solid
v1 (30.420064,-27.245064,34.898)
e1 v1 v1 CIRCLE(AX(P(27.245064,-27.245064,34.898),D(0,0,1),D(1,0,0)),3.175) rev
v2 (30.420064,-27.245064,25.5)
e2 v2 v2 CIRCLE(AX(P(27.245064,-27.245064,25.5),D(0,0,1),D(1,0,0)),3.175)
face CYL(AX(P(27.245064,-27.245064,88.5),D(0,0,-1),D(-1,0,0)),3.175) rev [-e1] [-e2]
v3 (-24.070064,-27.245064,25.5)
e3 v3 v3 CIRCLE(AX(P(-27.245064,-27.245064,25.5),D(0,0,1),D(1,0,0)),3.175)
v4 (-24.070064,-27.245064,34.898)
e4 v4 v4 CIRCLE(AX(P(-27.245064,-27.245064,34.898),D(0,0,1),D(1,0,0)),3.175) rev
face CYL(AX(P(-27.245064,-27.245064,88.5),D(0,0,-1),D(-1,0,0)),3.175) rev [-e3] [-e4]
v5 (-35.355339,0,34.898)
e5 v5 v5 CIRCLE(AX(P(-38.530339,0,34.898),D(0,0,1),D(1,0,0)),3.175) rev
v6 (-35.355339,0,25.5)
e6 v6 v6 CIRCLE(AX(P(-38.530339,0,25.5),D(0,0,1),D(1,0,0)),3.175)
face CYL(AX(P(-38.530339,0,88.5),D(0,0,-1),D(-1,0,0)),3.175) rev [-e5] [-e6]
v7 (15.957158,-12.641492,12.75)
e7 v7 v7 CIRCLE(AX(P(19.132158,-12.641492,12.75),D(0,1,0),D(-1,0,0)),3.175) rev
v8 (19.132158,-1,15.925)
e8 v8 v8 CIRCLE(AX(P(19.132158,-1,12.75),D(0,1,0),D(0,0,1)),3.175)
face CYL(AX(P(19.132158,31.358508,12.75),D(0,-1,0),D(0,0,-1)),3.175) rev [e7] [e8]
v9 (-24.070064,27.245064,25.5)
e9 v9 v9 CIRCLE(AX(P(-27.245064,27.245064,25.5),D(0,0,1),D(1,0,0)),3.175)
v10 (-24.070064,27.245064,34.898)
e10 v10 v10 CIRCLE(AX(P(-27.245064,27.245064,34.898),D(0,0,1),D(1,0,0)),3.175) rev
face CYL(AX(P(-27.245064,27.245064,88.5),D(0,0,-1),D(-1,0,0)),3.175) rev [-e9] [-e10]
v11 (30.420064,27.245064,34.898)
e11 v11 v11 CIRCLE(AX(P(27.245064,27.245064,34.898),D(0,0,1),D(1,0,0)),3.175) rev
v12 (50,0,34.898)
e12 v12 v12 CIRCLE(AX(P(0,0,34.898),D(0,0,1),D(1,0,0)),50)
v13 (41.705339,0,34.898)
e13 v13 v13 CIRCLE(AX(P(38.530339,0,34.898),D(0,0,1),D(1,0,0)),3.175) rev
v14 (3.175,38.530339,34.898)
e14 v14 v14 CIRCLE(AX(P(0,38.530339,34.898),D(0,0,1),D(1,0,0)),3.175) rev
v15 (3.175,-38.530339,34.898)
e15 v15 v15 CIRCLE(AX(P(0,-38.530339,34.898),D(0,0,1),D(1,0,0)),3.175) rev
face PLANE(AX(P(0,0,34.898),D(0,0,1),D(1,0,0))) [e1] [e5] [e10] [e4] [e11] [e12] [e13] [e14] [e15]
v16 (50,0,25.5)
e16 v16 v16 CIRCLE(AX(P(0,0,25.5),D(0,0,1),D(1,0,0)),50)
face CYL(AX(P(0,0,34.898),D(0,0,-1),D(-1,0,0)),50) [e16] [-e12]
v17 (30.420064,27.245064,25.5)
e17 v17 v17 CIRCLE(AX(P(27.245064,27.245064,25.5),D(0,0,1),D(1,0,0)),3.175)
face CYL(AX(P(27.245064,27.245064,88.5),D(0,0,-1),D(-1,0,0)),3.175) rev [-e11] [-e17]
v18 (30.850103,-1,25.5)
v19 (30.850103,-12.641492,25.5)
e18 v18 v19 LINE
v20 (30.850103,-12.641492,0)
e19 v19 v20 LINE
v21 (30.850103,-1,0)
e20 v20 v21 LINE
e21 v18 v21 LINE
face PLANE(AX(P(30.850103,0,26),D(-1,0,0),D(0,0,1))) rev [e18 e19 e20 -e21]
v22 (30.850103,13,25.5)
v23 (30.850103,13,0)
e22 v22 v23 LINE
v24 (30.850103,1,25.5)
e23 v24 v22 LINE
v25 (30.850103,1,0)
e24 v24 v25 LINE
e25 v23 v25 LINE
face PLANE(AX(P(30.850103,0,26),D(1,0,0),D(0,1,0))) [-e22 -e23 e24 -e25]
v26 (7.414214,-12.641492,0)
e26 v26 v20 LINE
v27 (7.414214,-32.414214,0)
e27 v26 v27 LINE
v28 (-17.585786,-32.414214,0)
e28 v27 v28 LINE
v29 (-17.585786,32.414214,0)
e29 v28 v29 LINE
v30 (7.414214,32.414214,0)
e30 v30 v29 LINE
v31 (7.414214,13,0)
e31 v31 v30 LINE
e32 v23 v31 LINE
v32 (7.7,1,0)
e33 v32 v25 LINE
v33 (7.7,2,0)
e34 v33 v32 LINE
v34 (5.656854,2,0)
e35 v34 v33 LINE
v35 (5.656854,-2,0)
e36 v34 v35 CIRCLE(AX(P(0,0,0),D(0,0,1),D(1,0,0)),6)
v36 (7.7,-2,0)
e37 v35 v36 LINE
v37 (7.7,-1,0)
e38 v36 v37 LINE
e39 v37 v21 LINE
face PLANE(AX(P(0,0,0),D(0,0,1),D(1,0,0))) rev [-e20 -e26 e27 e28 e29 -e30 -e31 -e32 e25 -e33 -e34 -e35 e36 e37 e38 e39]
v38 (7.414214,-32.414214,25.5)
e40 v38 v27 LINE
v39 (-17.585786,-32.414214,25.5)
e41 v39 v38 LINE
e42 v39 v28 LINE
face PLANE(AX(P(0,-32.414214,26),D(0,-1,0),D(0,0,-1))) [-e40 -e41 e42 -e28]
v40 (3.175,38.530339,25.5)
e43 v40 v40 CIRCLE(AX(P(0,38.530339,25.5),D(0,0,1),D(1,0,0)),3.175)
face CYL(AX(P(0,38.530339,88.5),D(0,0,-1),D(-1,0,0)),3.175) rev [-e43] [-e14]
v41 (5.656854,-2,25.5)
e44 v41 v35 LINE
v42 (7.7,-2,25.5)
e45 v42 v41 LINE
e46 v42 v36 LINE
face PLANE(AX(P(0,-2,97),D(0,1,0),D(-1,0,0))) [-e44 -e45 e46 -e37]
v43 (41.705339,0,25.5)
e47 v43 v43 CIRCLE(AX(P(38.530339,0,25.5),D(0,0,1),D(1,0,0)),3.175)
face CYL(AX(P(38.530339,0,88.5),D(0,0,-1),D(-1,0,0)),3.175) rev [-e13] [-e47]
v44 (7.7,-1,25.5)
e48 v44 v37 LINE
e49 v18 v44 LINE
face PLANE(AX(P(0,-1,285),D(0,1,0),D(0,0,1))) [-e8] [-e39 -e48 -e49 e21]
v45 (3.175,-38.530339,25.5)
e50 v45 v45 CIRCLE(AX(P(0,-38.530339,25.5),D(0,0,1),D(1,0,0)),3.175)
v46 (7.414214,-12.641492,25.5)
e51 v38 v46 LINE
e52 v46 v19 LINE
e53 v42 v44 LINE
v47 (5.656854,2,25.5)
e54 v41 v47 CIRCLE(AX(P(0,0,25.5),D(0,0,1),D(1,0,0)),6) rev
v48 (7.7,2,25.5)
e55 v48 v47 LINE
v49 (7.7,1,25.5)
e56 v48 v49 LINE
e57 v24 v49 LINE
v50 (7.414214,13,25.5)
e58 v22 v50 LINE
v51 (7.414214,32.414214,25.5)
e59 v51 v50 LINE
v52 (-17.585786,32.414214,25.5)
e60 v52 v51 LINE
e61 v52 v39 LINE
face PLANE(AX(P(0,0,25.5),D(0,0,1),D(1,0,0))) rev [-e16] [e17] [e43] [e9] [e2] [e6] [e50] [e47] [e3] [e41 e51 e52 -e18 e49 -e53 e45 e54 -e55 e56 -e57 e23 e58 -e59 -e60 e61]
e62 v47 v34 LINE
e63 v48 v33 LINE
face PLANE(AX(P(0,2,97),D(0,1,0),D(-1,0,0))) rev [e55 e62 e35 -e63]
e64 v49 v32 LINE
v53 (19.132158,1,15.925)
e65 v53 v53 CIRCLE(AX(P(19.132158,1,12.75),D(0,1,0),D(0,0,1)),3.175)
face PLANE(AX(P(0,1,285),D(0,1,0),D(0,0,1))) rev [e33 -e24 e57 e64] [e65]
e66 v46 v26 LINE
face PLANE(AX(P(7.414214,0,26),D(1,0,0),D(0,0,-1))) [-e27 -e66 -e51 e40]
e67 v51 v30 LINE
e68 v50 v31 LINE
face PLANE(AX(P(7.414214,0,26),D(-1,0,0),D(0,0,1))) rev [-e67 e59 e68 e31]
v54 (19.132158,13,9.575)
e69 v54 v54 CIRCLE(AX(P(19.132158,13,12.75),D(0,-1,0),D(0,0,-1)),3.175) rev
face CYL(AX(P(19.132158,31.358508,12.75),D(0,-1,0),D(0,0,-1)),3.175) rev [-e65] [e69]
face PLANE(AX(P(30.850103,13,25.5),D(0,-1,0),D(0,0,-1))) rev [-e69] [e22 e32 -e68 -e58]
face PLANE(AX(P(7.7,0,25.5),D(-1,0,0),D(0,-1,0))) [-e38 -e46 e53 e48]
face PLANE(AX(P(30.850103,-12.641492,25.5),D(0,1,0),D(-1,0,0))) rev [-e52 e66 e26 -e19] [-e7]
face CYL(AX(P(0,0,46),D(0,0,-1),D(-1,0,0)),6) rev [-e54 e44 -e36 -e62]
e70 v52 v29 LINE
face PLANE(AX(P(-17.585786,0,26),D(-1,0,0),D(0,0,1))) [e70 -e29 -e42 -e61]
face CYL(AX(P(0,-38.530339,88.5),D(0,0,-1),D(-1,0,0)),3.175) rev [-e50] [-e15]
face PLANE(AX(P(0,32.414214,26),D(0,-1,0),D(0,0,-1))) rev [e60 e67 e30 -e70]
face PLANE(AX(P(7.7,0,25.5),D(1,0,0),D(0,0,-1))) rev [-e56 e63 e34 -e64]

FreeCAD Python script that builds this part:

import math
import FreeCAD as App
import Part
import Sketcher
Q = App.Units.Quantity

doc = App.newDocument("Part")
params = doc.addObject("Spreadsheet::Sheet", "Params")
for row, (alias, value) in enumerate([
    ("sketch1_width", "30 mm"),
    ("pad1_length", "25.5 mm"),
    ("sketch2_radius", "6 mm"),
    ("sketch2_height", "2 mm"),
    ("pocket1_length", "46 mm"),
    ("sketch3_radius", "6 mm"),
    ("pocket2_length", "30 mm"),
    ("sketch4_radius", "6 mm"),
    ("sketch4_height", "2 mm"),
    ("pocket3_length", "31 mm"),
    ("sketch5_radius", "6 mm"),
    ("sketch5_height", "2 mm"),
    ("pocket4_length", "40 mm"),
    ("sketch6_diameter", "12 mm"),
    ("pocket5_length", "46 mm"),
    ("sketch7_radius", "6 mm"),
    ("sketch7_height", "4 mm"),
    ("pocket6_length", "97 mm"),
    ("sketch8_height", "2 mm"),
    ("pocket7_length", "285 mm"),
    ("sketch9_diameter", "100 mm"),
    ("pad2_length", "9.398 mm"),
    ("sketch10_width", "11 mm"),
    ("sketch10_height", "2 mm"),
    ("pocket8_length", "25.5 mm"),
    ("sketch11_diameter", "6.35 mm"),
    ("pocket9_length", "63 mm"),
    ("sketch12_width", "25 mm"),
    ("sketch12_height", "20 mm"),
    ("pad3_length", "26 mm"),
    ("sketch13_width", "10 mm"),
    ("sketch13_height", "2 mm"),
    ("pad4_length", "26 mm"),
    ("sketch14_diameter", "6.35 mm"),
    ("pocket10_length", "54 mm"),
    ("sketch15_height", "10 mm"),
    ("pocket11_length", "25.5 mm"),
    ("sketch16_height", "1 mm"),
    ("sketch16_width", "0.7 mm"),
    ("pocket12_length", "25.5 mm"),
], start=1):
    params.set(f"A{row}", alias)
    params.set(f"B{row}", "=" + value)
    params.setAlias(f"B{row}", alias)

body = doc.addObject("PartDesign::Body", "Body")

# Sketch on XY plane
sketch1 = body.newObject("Sketcher::SketchObject", "Sketch")
sketch1.AttachmentSupport = (doc.getObject("XY_Plane"), [""])
sketch1.MapMode = "FlatFace"
sketch1.addGeometry([
    Part.LineSegment(App.Vector(-7, 7, 0), App.Vector(-7, -7, 0)),
    Part.LineSegment(App.Vector(-7, -7, 0), App.Vector(23, -7, 0)),
    Part.LineSegment(App.Vector(23, -7, 0), App.Vector(23, 7, 0)),
    Part.LineSegment(App.Vector(23, 7, 0), App.Vector(-7, 7, 0)),
], False)
sketch1.addConstraint([
    Sketcher.Constraint("Coincident", 0, 2, 1, 1),
    Sketcher.Constraint("Coincident", 1, 2, 2, 1),
    Sketcher.Constraint("Coincident", 2, 2, 3, 1),
    Sketcher.Constraint("Coincident", 3, 2, 0, 1),
    Sketcher.Constraint("Vertical", 0),
    Sketcher.Constraint("Horizontal", 1),
    Sketcher.Constraint("Vertical", 2),
    Sketcher.Constraint("Horizontal", 3),
    Sketcher.Constraint("DistanceX", 1, 1, 1, 2, Q("30 mm")),
    Sketcher.Constraint("DistanceY", 0, 2, 0, 1, Q("14.828427 mm")),
    Sketcher.Constraint("DistanceX", 0, 2, -1, 1, Q("7.414214 mm")),
    Sketcher.Constraint("DistanceY", 0, 2, -1, 1, Q("7.414214 mm")),
])
sketch1.setExpression("Constraints[8]", "Params.sketch1_width")
pad1 = body.newObject("PartDesign::Pad", "Pad")
pad1.Profile = sketch1
pad1.setExpression("Length", "Params.pad1_length")

# Sketch on XY plane
sketch2 = body.newObject("Sketcher::SketchObject", "Sketch001")
sketch2.AttachmentSupport = (doc.getObject("XY_Plane"), [""])
sketch2.MapMode = "FlatFace"
sketch2.addGeometry([
    Part.LineSegment(App.Vector(0, -2, 0), App.Vector(0, 0, 0)),  # 0
    Part.LineSegment(App.Vector(0, 0, 0), App.Vector(-6, 0, 0)),  # 1
    Part.ArcOfCircle(Part.Circle(App.Vector(0, 0, 0), App.Vector(0, 0, 1), 6), math.radians(180), math.radians(270)),  # 2
    Part.ArcOfCircle(Part.Circle(App.Vector(0, 0, 0), App.Vector(0, 0, 1), 6), math.radians(-90), math.radians(-19)),  # 3
    Part.LineSegment(App.Vector(5.7, -2, 0), App.Vector(0, -2, 0)),  # 4
], False)
sketch2.addConstraint([
    Sketcher.Constraint("Coincident", 0, 2, 1, 1),
    Sketcher.Constraint("Coincident", 1, 2, 2, 1),
    Sketcher.Constraint("Tangent", 2, 2, 3, 1),
    Sketcher.Constraint("Coincident", 3, 2, 4, 1),
    Sketcher.Constraint("Coincident", 4, 2, 0, 1),
    Sketcher.Constraint("Vertical", 0),
    Sketcher.Constraint("Horizontal", 1),
    Sketcher.Constraint("Horizontal", 4),
    Sketcher.Constraint("Coincident", 2, 3, -1, 1),
    Sketcher.Constraint("Coincident", 0, 2, -1, 1),
    Sketcher.Constraint("Equal", 2, 3),
    Sketcher.Constraint("PointOnObject", 2, 2, -2),
    Sketcher.Constraint("Radius", 2, Q("6 mm")),
    Sketcher.Constraint("DistanceY", 0, 1, 0, 2, Q("2 mm")),
])
sketch2.setExpression("Constraints[12]", "Params.sketch2_radius")
sketch2.setExpression("Constraints[13]", "Params.sketch2_height")
pocket1 = body.newObject("PartDesign::Pocket", "Pocket")
pocket1.Profile = sketch2
pocket1.setExpression("Length", "Params.pocket1_length")
pocket1.Reversed = True

# Sketch on XY plane
sketch3 = body.newObject("Sketcher::SketchObject", "Sketch002")
sketch3.AttachmentSupport = (doc.getObject("XY_Plane"), [""])
sketch3.MapMode = "FlatFace"
sketch3.addGeometry([
    Part.LineSegment(App.Vector(-6, 0, 0), App.Vector(0, 0, 0)),
    Part.LineSegment(App.Vector(0, 0, 0), App.Vector(0, 6, 0)),
    Part.ArcOfCircle(Part.Circle(App.Vector(0, 0, 0), App.Vector(0, 0, 1), 6), math.radians(90), math.radians(180)),
], False)
sketch3.addConstraint([
    Sketcher.Constraint("Coincident", 0, 2, 1, 1),
    Sketcher.Constraint("Coincident", 1, 2, 2, 1),
    Sketcher.Constraint("Coincident", 2, 2, 0, 1),
    Sketcher.Constraint("Horizontal", 0),
    Sketcher.Constraint("Vertical", 1),
    Sketcher.Constraint("Coincident", 2, 3, -1, 1),
    Sketcher.Constraint("Coincident", 0, 2, -1, 1),
    Sketcher.Constraint("Radius", 2, Q("6 mm")),
])
sketch3.setExpression("Constraints[7]", "Params.sketch3_radius")
pocket2 = body.newObject("PartDesign::Pocket", "Pocket001")
pocket2.Profile = sketch3
pocket2.setExpression("Length", "Params.pocket2_length")
pocket2.Reversed = True

# Sketch on XY plane
sketch4 = body.newObject("Sketcher::SketchObject", "Sketch003")
sketch4.AttachmentSupport = (doc.getObject("XY_Plane"), [""])
sketch4.MapMode = "FlatFace"
sketch4.addGeometry([
    Part.LineSegment(App.Vector(0, 2, 0), App.Vector(0, 0, 0)),
    Part.LineSegment(App.Vector(0, 0, 0), App.Vector(6, 0, 0)),
    Part.ArcOfCircle(Part.Circle(App.Vector(0, 0, 0), App.Vector(0, 0, 1), 6), math.radians(0), math.radians(19.47)),
    Part.LineSegment(App.Vector(5.7, 2, 0), App.Vector(0, 2, 0)),
], False)
sketch4.addConstraint([
    Sketcher.Constraint("Coincident", 0, 2, 1, 1),
    Sketcher.Constraint("Coincident", 1, 2, 2, 1),
    Sketcher.Constraint("Coincident", 2, 2, 3, 1),
    Sketcher.Constraint("Coincident", 3, 2, 0, 1),
    Sketcher.Constraint("Vertical", 0),
    Sketcher.Constraint("Horizontal", 1),
    Sketcher.Constraint("Horizontal", 3),
    Sketcher.Constraint("Coincident", 2, 3, -1, 1),
    Sketcher.Constraint("Coincident", 0, 2, -1, 1),
    Sketcher.Constraint("Radius", 2, Q("6 mm")),
    Sketcher.Constraint("DistanceY", 0, 2, 0, 1, Q("2 mm")),
])
sketch4.setExpression("Constraints[9]", "Params.sketch4_radius")
sketch4.setExpression("Constraints[10]", "Params.sketch4_height")
pocket3 = body.newObject("PartDesign::Pocket", "Pocket002")
pocket3.Profile = sketch4
pocket3.setExpression("Length", "Params.pocket3_length")
pocket3.Reversed = True

# Sketch on XY plane
sketch5 = body.newObject("Sketcher::SketchObject", "Sketch004")
sketch5.AttachmentSupport = (doc.getObject("XY_Plane"), [""])
sketch5.MapMode = "FlatFace"
sketch5.addGeometry([
    Part.LineSegment(App.Vector(6, 0, 0), App.Vector(0, 0, 0)),
    Part.LineSegment(App.Vector(0, 0, 0), App.Vector(0, -2, 0)),
    Part.LineSegment(App.Vector(0, -2, 0), App.Vector(5.7, -2, 0)),
    Part.ArcOfCircle(Part.Circle(App.Vector(0, 0, 0), App.Vector(0, 0, 1), 6), math.radians(-19.47), math.radians(0)),
], False)
sketch5.addConstraint([
    Sketcher.Constraint("Coincident", 0, 2, 1, 1),
    Sketcher.Constraint("Coincident", 1, 2, 2, 1),
    Sketcher.Constraint("Coincident", 2, 2, 3, 1),
    Sketcher.Constraint("Coincident", 3, 2, 0, 1),
    Sketcher.Constraint("Horizontal", 0),
    Sketcher.Constraint("Vertical", 1),
    Sketcher.Constraint("Horizontal", 2),
    Sketcher.Constraint("Coincident", 3, 3, -1, 1),
    Sketcher.Constraint("Coincident", 0, 2, -1, 1),
    Sketcher.Constraint("Radius", 3, Q("6 mm")),
    Sketcher.Constraint("DistanceY", 1, 2, 1, 1, Q("2 mm")),
])
sketch5.setExpression("Constraints[9]", "Params.sketch5_radius")
sketch5.setExpression("Constraints[10]", "Params.sketch5_height")
pocket4 = body.newObject("PartDesign::Pocket", "Pocket003")
pocket4.Profile = sketch5
pocket4.setExpression("Length", "Params.pocket4_length")
pocket4.Reversed = True

# Sketch on XY plane
sketch6 = body.newObject("Sketcher::SketchObject", "Sketch005")
sketch6.AttachmentSupport = (doc.getObject("XY_Plane"), [""])
sketch6.MapMode = "FlatFace"
sketch6.addGeometry(Part.Circle(App.Vector(0, 0, 0), App.Vector(0, 0, 1), 6), False)
sketch6.addConstraint([
    Sketcher.Constraint("Coincident", 0, 3, -1, 1),
    Sketcher.Constraint("Diameter", 0, Q("12 mm")),
])
sketch6.setExpression("Constraints[1]", "Params.sketch6_diameter")
pocket5 = body.newObject("PartDesign::Pocket", "Pocket004")
pocket5.Profile = sketch6
pocket5.setExpression("Length", "Params.pocket5_length")
pocket5.Reversed = True

# Sketch on XY plane
sketch7 = body.newObject("Sketcher::SketchObject", "Sketch006")
sketch7.AttachmentSupport = (doc.getObject("XY_Plane"), [""])
sketch7.MapMode = "FlatFace"
sketch7.addGeometry([
    Part.ArcOfCircle(Part.Circle(App.Vector(0, 0, 0), App.Vector(0, 0, 1), 6), math.radians(0), math.radians(19.47)),  # 0
    Part.ArcOfCircle(Part.Circle(App.Vector(0, 0, 0), App.Vector(0, 0, 1), 6), math.radians(-19.47), math.radians(0)),  # 1
    Part.LineSegment(App.Vector(5.7, -2, 0), App.Vector(7, -2, 0)),  # 2
    Part.LineSegment(App.Vector(7, -2, 0), App.Vector(7, 2, 0)),  # 3
    Part.LineSegment(App.Vector(7, 2, 0), App.Vector(5.7, 2, 0)),  # 4
], False)
sketch7.addConstraint([
    Sketcher.Constraint("Tangent", 0, 1, 1, 2),
    Sketcher.Constraint("Coincident", 1, 1, 2, 1),
    Sketcher.Constraint("Coincident", 2, 2, 3, 1),
    Sketcher.Constraint("Coincident", 3, 2, 4, 1),
    Sketcher.Constraint("Coincident", 4, 2, 0, 2),
    Sketcher.Constraint("Horizontal", 2),
    Sketcher.Constraint("Vertical", 3),
    Sketcher.Constraint("Horizontal", 4),
    Sketcher.Constraint("Coincident", 0, 3, -1, 1),
    Sketcher.Constraint("Equal", 0, 1),
    Sketcher.Constraint("PointOnObject", 0, 1, -1),
    Sketcher.Constraint("Vertical", 1, 1, 4, 2),
    Sketcher.Constraint("Radius", 0, Q("6 mm")),
    Sketcher.Constraint("DistanceY", 3, 1, 3, 2, Q("4 mm")),
    Sketcher.Constraint("DistanceX", -1, 1, 2, 2, Q("7 mm")),
])
sketch7.setExpression("Constraints[12]", "Params.sketch7_radius")
sketch7.setExpression("Constraints[13]", "Params.sketch7_height")
pocket6 = body.newObject("PartDesign::Pocket", "Pocket005")
pocket6.Profile = sketch7
pocket6.setExpression("Length", "Params.pocket6_length")
pocket6.Reversed = True

# Sketch on XY plane
sketch8 = body.newObject("Sketcher::SketchObject", "Sketch007")
sketch8.AttachmentSupport = (doc.getObject("XY_Plane"), [""])
sketch8.MapMode = "FlatFace"
sketch8.addGeometry([
    Part.ArcOfCircle(Part.Circle(App.Vector(0, 0, 0), App.Vector(0, 0, 1), 10.5), math.radians(17), math.radians(45)),  # 0
    Part.LineSegment(App.Vector(10, 3, 0), App.Vector(20.9, 3, 0)),  # 1
    Part.LineSegment(App.Vector(20.9, 3, 0), App.Vector(20.9, 1, 0)),  # 2
    Part.LineSegment(App.Vector(20.9, 1, 0), App.Vector(18, 1, 0)),  # 3
    Part.LineSegment(App.Vector(18, 1, 0), App.Vector(18, -1, 0)),  # 4
    Part.LineSegment(App.Vector(18, -1, 0), App.Vector(20.9, -1, 0)),  # 5
    Part.LineSegment(App.Vector(20.9, -1, 0), App.Vector(20.9, -3, 0)),  # 6
    Part.LineSegment(App.Vector(20.9, -3, 0), App.Vector(10, -3, 0)),  # 7
    Part.ArcOfCircle(Part.Circle(App.Vector(0, 0, 0), App.Vector(0, 0, 1), 10.5), math.radians(-45), math.radians(-17)),  # 8
    Part.LineSegment(App.Vector(7.4, -7.4, 0), App.Vector(22.6, -7.4, 0)),  # 9
    Part.LineSegment(App.Vector(22.6, -7.4, 0), App.Vector(22.6, 7.4, 0)),  # 10
    Part.LineSegment(App.Vector(22.6, 7.4, 0), App.Vector(7.4, 7.4, 0)),  # 11
], False)
sketch8.addConstraint([
    Sketcher.Constraint("Coincident", 0, 1, 1, 1),
    Sketcher.Constraint("Coincident", 1, 2, 2, 1),
    Sketcher.Constraint("Coincident", 2, 2, 3, 1),
    Sketcher.Constraint("Coincident", 3, 2, 4, 1),
    Sketcher.Constraint("Coincident", 4, 2, 5, 1),
    Sketcher.Constraint("Coincident", 5, 2, 6, 1),
    Sketcher.Constraint("Coincident", 6, 2, 7, 1),
    Sketcher.Constraint("Coincident", 7, 2, 8, 2),
    Sketcher.Constraint("Coincident", 8, 1, 9, 1),
    Sketcher.Constraint("Coincident", 9, 2, 10, 1),
    Sketcher.Constraint("Coincident", 10, 2, 11, 1),
    Sketcher.Constraint("Coincident", 11, 2, 0, 2),
    Sketcher.Constraint("Horizontal", 1),
    Sketcher.Constraint("Vertical", 2),
    Sketcher.Constraint("Horizontal", 3),
    Sketcher.Constraint("Vertical", 4),
    Sketcher.Constraint("Horizontal", 5),
    Sketcher.Constraint("Vertical", 6),
    Sketcher.Constraint("Horizontal", 7),
    Sketcher.Constraint("Horizontal", 9),
    Sketcher.Constraint("Vertical", 10),
    Sketcher.Constraint("Horizontal", 11),
    Sketcher.Constraint("Coincident", 0, 3, -1, 1),
    Sketcher.Constraint("Coincident", 8, 3, -1, 1),
    Sketcher.Constraint("Equal", 0, 8),
    Sketcher.Constraint("Symmetric", 2, 2, 5, 2, -1),
    Sketcher.Constraint("Vertical", 0, 1, 7, 2),
    Sketcher.Constraint("Vertical", 8, 1, 11, 2),
    Sketcher.Constraint("Equal", 2, 4),
    Sketcher.Constraint("DistanceY", 2, 2, 2, 1, Q("2 mm")),
    Sketcher.Constraint("DistanceX", -1, 1, 3, 2, Q("18 mm")),
    Sketcher.Constraint("Radius", 0, Q("10.485281 mm")),
    Sketcher.Constraint("DistanceX", 1, 1, 1, 2, Q("10.803157 mm")),
    Sketcher.Constraint("DistanceX", 9, 1, 9, 2, Q("15.171573 mm")),
    Sketcher.Constraint("DistanceY", 10, 1, 10, 2, Q("14.828427 mm")),
])
sketch8.setExpression("Constraints[29]", "Params.sketch8_height")
pocket7 = body.newObject("PartDesign::Pocket", "Pocket006")
pocket7.Profile = sketch8
pocket7.setExpression("Length", "Params.pocket7_length")
pocket7.Reversed = True

# Sketch on XY plane
sketch9 = body.newObject("Sketcher::SketchObject", "Sketch008")
sketch9.AttachmentSupport = (doc.getObject("XY_Plane"), [""])
sketch9.MapMode = "FlatFace"
sketch9.AttachmentOffset = App.Placement(App.Vector(0, 0, 25.5), App.Rotation())
sketch9.addGeometry(Part.Circle(App.Vector(0, 0, 0), App.Vector(0, 0, 1), 50), False)
sketch9.addConstraint([
    Sketcher.Constraint("Coincident", 0, 3, -1, 1),
    Sketcher.Constraint("Diameter", 0, Q("100 mm")),
])
sketch9.setExpression("Constraints[1]", "Params.sketch9_diameter")
pad2 = body.newObject("PartDesign::Pad", "Pad001")
pad2.Profile = sketch9
pad2.setExpression("Length", "Params.pad2_length")

# Sketch on XY plane
sketch10 = body.newObject("Sketcher::SketchObject", "Sketch009")
sketch10.AttachmentSupport = (doc.getObject("XY_Plane"), [""])
sketch10.MapMode = "FlatFace"
sketch10.addGeometry([
    Part.LineSegment(App.Vector(18, 1, 0), App.Vector(18, -1, 0)),
    Part.LineSegment(App.Vector(18, -1, 0), App.Vector(7, -1, 0)),
    Part.LineSegment(App.Vector(7, -1, 0), App.Vector(7, 1, 0)),
    Part.LineSegment(App.Vector(7, 1, 0), App.Vector(18, 1, 0)),
], False)
sketch10.addConstraint([
    Sketcher.Constraint("Coincident", 0, 2, 1, 1),
    Sketcher.Constraint("Coincident", 1, 2, 2, 1),
    Sketcher.Constraint("Coincident", 2, 2, 3, 1),
    Sketcher.Constraint("Coincident", 3, 2, 0, 1),
    Sketcher.Constraint("Vertical", 0),
    Sketcher.Constraint("Horizontal", 1),
    Sketcher.Constraint("Vertical", 2),
    Sketcher.Constraint("Horizontal", 3),
    Sketcher.Constraint("DistanceX", 1, 2, 1, 1, Q("11 mm")),
    Sketcher.Constraint("DistanceY", 0, 2, 0, 1, Q("2 mm")),
    Sketcher.Constraint("DistanceX", -1, 1, 0, 2, Q("18 mm")),
    Sketcher.Constraint("DistanceY", 0, 2, -1, 1, Q("1 mm")),
])
sketch10.setExpression("Constraints[8]", "Params.sketch10_width")
sketch10.setExpression("Constraints[9]", "Params.sketch10_height")
pocket8 = body.newObject("PartDesign::Pocket", "Pocket007")
pocket8.Profile = sketch10
pocket8.setExpression("Length", "Params.pocket8_length")
pocket8.Reversed = True

# Sketch on XY plane
sketch11 = body.newObject("Sketcher::SketchObject", "Sketch010")
sketch11.AttachmentSupport = (doc.getObject("XY_Plane"), [""])
sketch11.MapMode = "FlatFace"
sketch11.AttachmentOffset = App.Placement(App.Vector(0, 0, 25.5), App.Rotation())
sketch11.addGeometry([
    Part.Circle(App.Vector(27.2, 27.2, 0), App.Vector(0, 0, 1), 3.2),  # 0
    Part.Circle(App.Vector(-27.2, 27.2, 0), App.Vector(0, 0, 1), 3.2),  # 1
    Part.Circle(App.Vector(-38.5, 0, 0), App.Vector(0, 0, 1), 3.2),  # 2
    Part.Circle(App.Vector(-27.2, -27.2, 0), App.Vector(0, 0, 1), 3.2),  # 3
    Part.Circle(App.Vector(0, -38.5, 0), App.Vector(0, 0, 1), 3.2),  # 4
    Part.Circle(App.Vector(27.2, -27.2, 0), App.Vector(0, 0, 1), 3.2),  # 5
    Part.Circle(App.Vector(38.5, 0, 0), App.Vector(0, 0, 1), 3.2),  # 6
    Part.Circle(App.Vector(0, 38.5, 0), App.Vector(0, 0, 1), 3.2),  # 7
], False)
sketch11.addConstraint([
    Sketcher.Constraint("Equal", 0, 1),
    Sketcher.Constraint("Equal", 1, 2),
    Sketcher.Constraint("Equal", 2, 3),
    Sketcher.Constraint("Equal", 3, 4),
    Sketcher.Constraint("Equal", 4, 5),
    Sketcher.Constraint("Equal", 5, 6),
    Sketcher.Constraint("Equal", 6, 7),
    Sketcher.Constraint("Symmetric", 0, 3, 3, 3, -1, 1),
    Sketcher.Constraint("Symmetric", 1, 3, 5, 3, -1, 1),
    Sketcher.Constraint("Symmetric", 2, 3, 6, 3, -1, 1),
    Sketcher.Constraint("Symmetric", 4, 3, 7, 3, -1, 1),
    Sketcher.Constraint("Symmetric", 0, 3, 1, 3, -2),
    Sketcher.Constraint("PointOnObject", 2, 3, -1),
    Sketcher.Constraint("PointOnObject", 4, 3, -2),
    Sketcher.Constraint("Diameter", 0, Q("6.35 mm")),
    Sketcher.Constraint("DistanceX", 2, 3, -1, 1, Q("38.530339 mm")),
    Sketcher.Constraint("DistanceY", 4, 3, -1, 1, Q("38.530339 mm")),
    Sketcher.Constraint("DistanceX", 1, 3, 0, 3, Q("54.490128 mm")),
    Sketcher.Constraint("DistanceY", 3, 3, 1, 3, Q("54.490128 mm")),
])
sketch11.setExpression("Constraints[14]", "Params.sketch11_diameter")
pocket9 = body.newObject("PartDesign::Pocket", "Pocket008")
pocket9.Profile = sketch11
pocket9.setExpression("Length", "Params.pocket9_length")
pocket9.Reversed = True

# Sketch on XY plane
sketch12 = body.newObject("Sketcher::SketchObject", "Sketch011")
sketch12.AttachmentSupport = (doc.getObject("XY_Plane"), [""])
sketch12.MapMode = "FlatFace"
sketch12.addGeometry([
    Part.LineSegment(App.Vector(7.4, 7.4, 0), App.Vector(-7.4, 7.4, 0)),  # 0
    Part.LineSegment(App.Vector(-7.4, 7.4, 0), App.Vector(-7.4, -7.4, 0)),  # 1
    Part.LineSegment(App.Vector(-7.4, -7.4, 0), App.Vector(7.4, -7.4, 0)),  # 2
    Part.LineSegment(App.Vector(7.4, -7.4, 0), App.Vector(7.4, -3, 0)),  # 3
    Part.LineSegment(App.Vector(7.4, -3, 0), App.Vector(30.9, -3, 0)),  # 4
    Part.LineSegment(App.Vector(30.9, -3, 0), App.Vector(30.9, -22.6, 0)),  # 5
    Part.LineSegment(App.Vector(30.9, -22.6, 0), App.Vector(7.4, -22.6, 0)),  # 6
    Part.LineSegment(App.Vector(7.4, -22.6, 0), App.Vector(7.4, -32.4, 0)),  # 7
    Part.LineSegment(App.Vector(7.4, -32.4, 0), App.Vector(-17.6, -32.4, 0)),  # 8
    Part.LineSegment(App.Vector(-17.6, -32.4, 0), App.Vector(-17.6, 32.4, 0)),  # 9
    Part.LineSegment(App.Vector(-17.6, 32.4, 0), App.Vector(7.4, 32.4, 0)),  # 10
    Part.LineSegment(App.Vector(7.4, 32.4, 0), App.Vector(7.4, 23, 0)),  # 11
    Part.LineSegment(App.Vector(7.4, 23, 0), App.Vector(30.9, 23, 0)),  # 12
    Part.LineSegment(App.Vector(30.9, 23, 0), App.Vector(30.9, 3, 0)),  # 13
    Part.LineSegment(App.Vector(30.9, 3, 0), App.Vector(7.4, 3, 0)),  # 14
    Part.LineSegment(App.Vector(7.4, 3, 0), App.Vector(7.4, 7.4, 0)),  # 15
], False)
sketch12.addConstraint([
    Sketcher.Constraint("Coincident", 0, 2, 1, 1),
    Sketcher.Constraint("Coincident", 1, 2, 2, 1),
    Sketcher.Constraint("Coincident", 2, 2, 3, 1),
    Sketcher.Constraint("Coincident", 3, 2, 4, 1),
    Sketcher.Constraint("Coincident", 4, 2, 5, 1),
    Sketcher.Constraint("Coincident", 5, 2, 6, 1),
    Sketcher.Constraint("Coincident", 6, 2, 7, 1),
    Sketcher.Constraint("Coincident", 7, 2, 8, 1),
    Sketcher.Constraint("Coincident", 8, 2, 9, 1),
    Sketcher.Constraint("Coincident", 9, 2, 10, 1),
    Sketcher.Constraint("Coincident", 10, 2, 11, 1),
    Sketcher.Constraint("Coincident", 11, 2, 12, 1),
    Sketcher.Constraint("Coincident", 12, 2, 13, 1),
    Sketcher.Constraint("Coincident", 13, 2, 14, 1),
    Sketcher.Constraint("Coincident", 14, 2, 15, 1),
    Sketcher.Constraint("Coincident", 15, 2, 0, 1),
    Sketcher.Constraint("Horizontal", 0),
    Sketcher.Constraint("Vertical", 1),
    Sketcher.Constraint("Horizontal", 2),
    Sketcher.Constraint("Vertical", 3),
    Sketcher.Constraint("Horizontal", 4),
    Sketcher.Constraint("Vertical", 5),
    Sketcher.Constraint("Horizontal", 6),
    Sketcher.Constraint("Vertical", 7),
    Sketcher.Constraint("Horizontal", 8),
    Sketcher.Constraint("Vertical", 9),
    Sketcher.Constraint("Horizontal", 10),
    Sketcher.Constraint("Vertical", 11),
    Sketcher.Constraint("Horizontal", 12),
    Sketcher.Constraint("Vertical", 13),
    Sketcher.Constraint("Horizontal", 14),
    Sketcher.Constraint("Vertical", 15),
    Sketcher.Constraint("Symmetric", 0, 2, 2, 2, -1, 1),
    Sketcher.Constraint("Symmetric", 7, 2, 10, 2, -1),
    Sketcher.Constraint("Symmetric", 4, 2, 13, 2, -1),
    Sketcher.Constraint("Vertical", 3, 2, 6, 2),
    Sketcher.Constraint("Vertical", 11, 2, 14, 2),
    Sketcher.Constraint("Equal", 2, 1),
    Sketcher.Constraint("DistanceX", 8, 2, 8, 1, Q("25 mm")),
    Sketcher.Constraint("DistanceY", 13, 2, 13, 1, Q("20 mm")),
    Sketcher.Constraint("DistanceY", 3, 2, -1, 1, Q("3 mm")),
    Sketcher.Constraint("DistanceY", 7, 2, 2, 2, Q("25 mm")),
    Sketcher.Constraint("DistanceX", 4, 1, 4, 2, Q("23.43589 mm")),
    Sketcher.Constraint("DistanceY", 7, 2, 7, 1, Q("9.772722 mm")),
    Sketcher.Constraint("DistanceX", 0, 2, 0, 1, Q("14.828427 mm")),
])
sketch12.setExpression("Constraints[38]", "Params.sketch12_width")
sketch12.setExpression("Constraints[39]", "Params.sketch12_height")
pad3 = body.newObject("PartDesign::Pad", "Pad002")
pad3.Profile = sketch12
pad3.setExpression("Length", "Params.pad3_length")

# Sketch on XY plane
sketch13 = body.newObject("Sketcher::SketchObject", "Sketch012")
sketch13.AttachmentSupport = (doc.getObject("XY_Plane"), [""])
sketch13.MapMode = "FlatFace"
sketch13.addGeometry([
    Part.LineSegment(App.Vector(30.9, 3, 0), App.Vector(30.9, 1, 0)),  # 0
    Part.LineSegment(App.Vector(30.9, 1, 0), App.Vector(20.9, 1, 0)),  # 1
    Part.LineSegment(App.Vector(20.9, 1, 0), App.Vector(20.9, 3, 0)),  # 2
    Part.LineSegment(App.Vector(20.9, 3, 0), App.Vector(30.9, 3, 0)),  # 3
    Part.LineSegment(App.Vector(30.9, -1, 0), App.Vector(30.9, -3, 0)),  # 4
    Part.LineSegment(App.Vector(30.9, -3, 0), App.Vector(20.9, -3, 0)),  # 5
    Part.LineSegment(App.Vector(20.9, -3, 0), App.Vector(20.9, -1, 0)),  # 6
    Part.LineSegment(App.Vector(20.9, -1, 0), App.Vector(30.9, -1, 0)),  # 7
], False)
sketch13.addConstraint([
    Sketcher.Constraint("Coincident", 0, 2, 1, 1),
    Sketcher.Constraint("Coincident", 1, 2, 2, 1),
    Sketcher.Constraint("Coincident", 2, 2, 3, 1),
    Sketcher.Constraint("Coincident", 3, 2, 0, 1),
    Sketcher.Constraint("Coincident", 4, 2, 5, 1),
    Sketcher.Constraint("Coincident", 5, 2, 6, 1),
    Sketcher.Constraint("Coincident", 6, 2, 7, 1),
    Sketcher.Constraint("Coincident", 7, 2, 4, 1),
    Sketcher.Constraint("Vertical", 0),
    Sketcher.Constraint("Horizontal", 1),
    Sketcher.Constraint("Vertical", 2),
    Sketcher.Constraint("Horizontal", 3),
    Sketcher.Constraint("Vertical", 4),
    Sketcher.Constraint("Horizontal", 5),
    Sketcher.Constraint("Vertical", 6),
    Sketcher.Constraint("Horizontal", 7),
    Sketcher.Constraint("Symmetric", 3, 2, 4, 2, -1),
    Sketcher.Constraint("Symmetric", 1, 2, 6, 2, -1),
    Sketcher.Constraint("DistanceX", 1, 2, 1, 1, Q("10 mm")),
    Sketcher.Constraint("DistanceY", 0, 2, 0, 1, Q("2 mm")),
    Sketcher.Constraint("DistanceY", -1, 1, 0, 2, Q("1 mm")),
    Sketcher.Constraint("DistanceX", -1, 1, 0, 2, Q("30.850103 mm")),
])
sketch13.setExpression("Constraints[18]", "Params.sketch13_width")
sketch13.setExpression("Constraints[19]", "Params.sketch13_height")
pad4 = body.newObject("PartDesign::Pad", "Pad003")
pad4.Profile = sketch13
pad4.setExpression("Length", "Params.pad4_length")

# Sketch on XZ plane
sketch14 = body.newObject("Sketcher::SketchObject", "Sketch013")
sketch14.AttachmentSupport = (doc.getObject("XZ_Plane"), [""])
sketch14.MapMode = "FlatFace"
sketch14.AttachmentOffset = App.Placement(App.Vector(0, 0, 22.641492), App.Rotation())
sketch14.addGeometry(Part.Circle(App.Vector(19.1, 12.8, 0), App.Vector(0, 0, 1), 3.2), False)
sketch14.addConstraint([
    Sketcher.Constraint("Diameter", 0, Q("6.35 mm")),
    Sketcher.Constraint("DistanceY", -1, 1, 0, 3, Q("12.75 mm")),
    Sketcher.Constraint("DistanceX", -1, 1, 0, 3, Q("19.132158 mm")),
])
sketch14.setExpression("Constraints[0]", "Params.sketch14_diameter")
pocket10 = body.newObject("PartDesign::Pocket", "Pocket009")
pocket10.Profile = sketch14
pocket10.setExpression("Length", "Params.pocket10_length")

# Sketch on XY plane
sketch15 = body.newObject("Sketcher::SketchObject", "Sketch014")
sketch15.AttachmentSupport = (doc.getObject("XY_Plane"), [""])
sketch15.MapMode = "FlatFace"
sketch15.addGeometry([
    Part.LineSegment(App.Vector(31, -13, 0), App.Vector(31, -23, 0)),  # 0
    Part.LineSegment(App.Vector(31, -23, 0), App.Vector(7, -23, 0)),  # 1
    Part.LineSegment(App.Vector(7, -23, 0), App.Vector(7, -13, 0)),  # 2
    Part.LineSegment(App.Vector(7, -13, 0), App.Vector(31, -13, 0)),  # 3
    Part.LineSegment(App.Vector(31, 23, 0), App.Vector(31, 13, 0)),  # 4
    Part.LineSegment(App.Vector(31, 13, 0), App.Vector(7, 13, 0)),  # 5
    Part.LineSegment(App.Vector(7, 13, 0), App.Vector(7, 23, 0)),  # 6
    Part.LineSegment(App.Vector(7, 23, 0), App.Vector(31, 23, 0)),  # 7
], False)
sketch15.addConstraint([
    Sketcher.Constraint("Coincident", 0, 2, 1, 1),
    Sketcher.Constraint("Coincident", 1, 2, 2, 1),
    Sketcher.Constraint("Coincident", 2, 2, 3, 1),
    Sketcher.Constraint("Coincident", 3, 2, 0, 1),
    Sketcher.Constraint("Coincident", 4, 2, 5, 1),
    Sketcher.Constraint("Coincident", 5, 2, 6, 1),
    Sketcher.Constraint("Coincident", 6, 2, 7, 1),
    Sketcher.Constraint("Coincident", 7, 2, 4, 1),
    Sketcher.Constraint("Vertical", 0),
    Sketcher.Constraint("Horizontal", 1),
    Sketcher.Constraint("Vertical", 2),
    Sketcher.Constraint("Horizontal", 3),
    Sketcher.Constraint("Vertical", 4),
    Sketcher.Constraint("Horizontal", 5),
    Sketcher.Constraint("Vertical", 6),
    Sketcher.Constraint("Horizontal", 7),
    Sketcher.Constraint("Vertical", 3, 2, 4, 2),
    Sketcher.Constraint("Vertical", 2, 2, 5, 2),
    Sketcher.Constraint("Equal", 2, 4),
    Sketcher.Constraint("DistanceY", 0, 2, 0, 1, Q("10 mm")),
    Sketcher.Constraint("DistanceY", -1, 1, 4, 2, Q("13 mm")),
    Sketcher.Constraint("DistanceX", 1, 2, 1, 1, Q("23.43589 mm")),
    Sketcher.Constraint("DistanceX", -1, 1, 0, 2, Q("30.850103 mm")),
    Sketcher.Constraint("DistanceY", 0, 2, -1, 1, Q("22.641492 mm")),
])
sketch15.setExpression("Constraints[19]", "Params.sketch15_height")
pocket11 = body.newObject("PartDesign::Pocket", "Pocket010")
pocket11.Profile = sketch15
pocket11.setExpression("Length", "Params.pocket11_length")
pocket11.Reversed = True

# Sketch on XY plane
sketch16 = body.newObject("Sketcher::SketchObject", "Sketch015")
sketch16.AttachmentSupport = (doc.getObject("XY_Plane"), [""])
sketch16.MapMode = "FlatFace"
sketch16.addGeometry([
    Part.LineSegment(App.Vector(7, 2, 0), App.Vector(7, 1, 0)),  # 0
    Part.LineSegment(App.Vector(7, 1, 0), App.Vector(7.7, 1, 0)),  # 1
    Part.LineSegment(App.Vector(7.7, 1, 0), App.Vector(7.7, 2, 0)),  # 2
    Part.LineSegment(App.Vector(7.7, 2, 0), App.Vector(7, 2, 0)),  # 3
    Part.LineSegment(App.Vector(7, -1, 0), App.Vector(7, -2, 0)),  # 4
    Part.LineSegment(App.Vector(7, -2, 0), App.Vector(7.7, -2, 0)),  # 5
    Part.LineSegment(App.Vector(7.7, -2, 0), App.Vector(7.7, -1, 0)),  # 6
    Part.LineSegment(App.Vector(7.7, -1, 0), App.Vector(7, -1, 0)),  # 7
], False)
sketch16.addConstraint([
    Sketcher.Constraint("Coincident", 0, 2, 1, 1),
    Sketcher.Constraint("Coincident", 1, 2, 2, 1),
    Sketcher.Constraint("Coincident", 2, 2, 3, 1),
    Sketcher.Constraint("Coincident", 3, 2, 0, 1),
    Sketcher.Constraint("Coincident", 4, 2, 5, 1),
    Sketcher.Constraint("Coincident", 5, 2, 6, 1),
    Sketcher.Constraint("Coincident", 6, 2, 7, 1),
    Sketcher.Constraint("Coincident", 7, 2, 4, 1),
    Sketcher.Constraint("Vertical", 0),
    Sketcher.Constraint("Horizontal", 1),
    Sketcher.Constraint("Vertical", 2),
    Sketcher.Constraint("Horizontal", 3),
    Sketcher.Constraint("Vertical", 4),
    Sketcher.Constraint("Horizontal", 5),
    Sketcher.Constraint("Vertical", 6),
    Sketcher.Constraint("Horizontal", 7),
    Sketcher.Constraint("Symmetric", 3, 2, 4, 2, -1),
    Sketcher.Constraint("Symmetric", 1, 2, 6, 2, -1),
    Sketcher.Constraint("DistanceY", 0, 2, 0, 1, Q("1 mm")),
    Sketcher.Constraint("DistanceX", 1, 1, 1, 2, Q("0.7 mm")),
    Sketcher.Constraint("DistanceX", -1, 1, 0, 2, Q("7 mm")),
    Sketcher.Constraint("DistanceY", -1, 1, 0, 2, Q("1 mm")),
])
sketch16.setExpression("Constraints[18]", "Params.sketch16_height")
sketch16.setExpression("Constraints[19]", "Params.sketch16_width")
pocket12 = body.newObject("PartDesign::Pocket", "Pocket011")
pocket12.Profile = sketch16
pocket12.setExpression("Length", "Params.pocket12_length")
pocket12.Reversed = True

doc.recompute()
